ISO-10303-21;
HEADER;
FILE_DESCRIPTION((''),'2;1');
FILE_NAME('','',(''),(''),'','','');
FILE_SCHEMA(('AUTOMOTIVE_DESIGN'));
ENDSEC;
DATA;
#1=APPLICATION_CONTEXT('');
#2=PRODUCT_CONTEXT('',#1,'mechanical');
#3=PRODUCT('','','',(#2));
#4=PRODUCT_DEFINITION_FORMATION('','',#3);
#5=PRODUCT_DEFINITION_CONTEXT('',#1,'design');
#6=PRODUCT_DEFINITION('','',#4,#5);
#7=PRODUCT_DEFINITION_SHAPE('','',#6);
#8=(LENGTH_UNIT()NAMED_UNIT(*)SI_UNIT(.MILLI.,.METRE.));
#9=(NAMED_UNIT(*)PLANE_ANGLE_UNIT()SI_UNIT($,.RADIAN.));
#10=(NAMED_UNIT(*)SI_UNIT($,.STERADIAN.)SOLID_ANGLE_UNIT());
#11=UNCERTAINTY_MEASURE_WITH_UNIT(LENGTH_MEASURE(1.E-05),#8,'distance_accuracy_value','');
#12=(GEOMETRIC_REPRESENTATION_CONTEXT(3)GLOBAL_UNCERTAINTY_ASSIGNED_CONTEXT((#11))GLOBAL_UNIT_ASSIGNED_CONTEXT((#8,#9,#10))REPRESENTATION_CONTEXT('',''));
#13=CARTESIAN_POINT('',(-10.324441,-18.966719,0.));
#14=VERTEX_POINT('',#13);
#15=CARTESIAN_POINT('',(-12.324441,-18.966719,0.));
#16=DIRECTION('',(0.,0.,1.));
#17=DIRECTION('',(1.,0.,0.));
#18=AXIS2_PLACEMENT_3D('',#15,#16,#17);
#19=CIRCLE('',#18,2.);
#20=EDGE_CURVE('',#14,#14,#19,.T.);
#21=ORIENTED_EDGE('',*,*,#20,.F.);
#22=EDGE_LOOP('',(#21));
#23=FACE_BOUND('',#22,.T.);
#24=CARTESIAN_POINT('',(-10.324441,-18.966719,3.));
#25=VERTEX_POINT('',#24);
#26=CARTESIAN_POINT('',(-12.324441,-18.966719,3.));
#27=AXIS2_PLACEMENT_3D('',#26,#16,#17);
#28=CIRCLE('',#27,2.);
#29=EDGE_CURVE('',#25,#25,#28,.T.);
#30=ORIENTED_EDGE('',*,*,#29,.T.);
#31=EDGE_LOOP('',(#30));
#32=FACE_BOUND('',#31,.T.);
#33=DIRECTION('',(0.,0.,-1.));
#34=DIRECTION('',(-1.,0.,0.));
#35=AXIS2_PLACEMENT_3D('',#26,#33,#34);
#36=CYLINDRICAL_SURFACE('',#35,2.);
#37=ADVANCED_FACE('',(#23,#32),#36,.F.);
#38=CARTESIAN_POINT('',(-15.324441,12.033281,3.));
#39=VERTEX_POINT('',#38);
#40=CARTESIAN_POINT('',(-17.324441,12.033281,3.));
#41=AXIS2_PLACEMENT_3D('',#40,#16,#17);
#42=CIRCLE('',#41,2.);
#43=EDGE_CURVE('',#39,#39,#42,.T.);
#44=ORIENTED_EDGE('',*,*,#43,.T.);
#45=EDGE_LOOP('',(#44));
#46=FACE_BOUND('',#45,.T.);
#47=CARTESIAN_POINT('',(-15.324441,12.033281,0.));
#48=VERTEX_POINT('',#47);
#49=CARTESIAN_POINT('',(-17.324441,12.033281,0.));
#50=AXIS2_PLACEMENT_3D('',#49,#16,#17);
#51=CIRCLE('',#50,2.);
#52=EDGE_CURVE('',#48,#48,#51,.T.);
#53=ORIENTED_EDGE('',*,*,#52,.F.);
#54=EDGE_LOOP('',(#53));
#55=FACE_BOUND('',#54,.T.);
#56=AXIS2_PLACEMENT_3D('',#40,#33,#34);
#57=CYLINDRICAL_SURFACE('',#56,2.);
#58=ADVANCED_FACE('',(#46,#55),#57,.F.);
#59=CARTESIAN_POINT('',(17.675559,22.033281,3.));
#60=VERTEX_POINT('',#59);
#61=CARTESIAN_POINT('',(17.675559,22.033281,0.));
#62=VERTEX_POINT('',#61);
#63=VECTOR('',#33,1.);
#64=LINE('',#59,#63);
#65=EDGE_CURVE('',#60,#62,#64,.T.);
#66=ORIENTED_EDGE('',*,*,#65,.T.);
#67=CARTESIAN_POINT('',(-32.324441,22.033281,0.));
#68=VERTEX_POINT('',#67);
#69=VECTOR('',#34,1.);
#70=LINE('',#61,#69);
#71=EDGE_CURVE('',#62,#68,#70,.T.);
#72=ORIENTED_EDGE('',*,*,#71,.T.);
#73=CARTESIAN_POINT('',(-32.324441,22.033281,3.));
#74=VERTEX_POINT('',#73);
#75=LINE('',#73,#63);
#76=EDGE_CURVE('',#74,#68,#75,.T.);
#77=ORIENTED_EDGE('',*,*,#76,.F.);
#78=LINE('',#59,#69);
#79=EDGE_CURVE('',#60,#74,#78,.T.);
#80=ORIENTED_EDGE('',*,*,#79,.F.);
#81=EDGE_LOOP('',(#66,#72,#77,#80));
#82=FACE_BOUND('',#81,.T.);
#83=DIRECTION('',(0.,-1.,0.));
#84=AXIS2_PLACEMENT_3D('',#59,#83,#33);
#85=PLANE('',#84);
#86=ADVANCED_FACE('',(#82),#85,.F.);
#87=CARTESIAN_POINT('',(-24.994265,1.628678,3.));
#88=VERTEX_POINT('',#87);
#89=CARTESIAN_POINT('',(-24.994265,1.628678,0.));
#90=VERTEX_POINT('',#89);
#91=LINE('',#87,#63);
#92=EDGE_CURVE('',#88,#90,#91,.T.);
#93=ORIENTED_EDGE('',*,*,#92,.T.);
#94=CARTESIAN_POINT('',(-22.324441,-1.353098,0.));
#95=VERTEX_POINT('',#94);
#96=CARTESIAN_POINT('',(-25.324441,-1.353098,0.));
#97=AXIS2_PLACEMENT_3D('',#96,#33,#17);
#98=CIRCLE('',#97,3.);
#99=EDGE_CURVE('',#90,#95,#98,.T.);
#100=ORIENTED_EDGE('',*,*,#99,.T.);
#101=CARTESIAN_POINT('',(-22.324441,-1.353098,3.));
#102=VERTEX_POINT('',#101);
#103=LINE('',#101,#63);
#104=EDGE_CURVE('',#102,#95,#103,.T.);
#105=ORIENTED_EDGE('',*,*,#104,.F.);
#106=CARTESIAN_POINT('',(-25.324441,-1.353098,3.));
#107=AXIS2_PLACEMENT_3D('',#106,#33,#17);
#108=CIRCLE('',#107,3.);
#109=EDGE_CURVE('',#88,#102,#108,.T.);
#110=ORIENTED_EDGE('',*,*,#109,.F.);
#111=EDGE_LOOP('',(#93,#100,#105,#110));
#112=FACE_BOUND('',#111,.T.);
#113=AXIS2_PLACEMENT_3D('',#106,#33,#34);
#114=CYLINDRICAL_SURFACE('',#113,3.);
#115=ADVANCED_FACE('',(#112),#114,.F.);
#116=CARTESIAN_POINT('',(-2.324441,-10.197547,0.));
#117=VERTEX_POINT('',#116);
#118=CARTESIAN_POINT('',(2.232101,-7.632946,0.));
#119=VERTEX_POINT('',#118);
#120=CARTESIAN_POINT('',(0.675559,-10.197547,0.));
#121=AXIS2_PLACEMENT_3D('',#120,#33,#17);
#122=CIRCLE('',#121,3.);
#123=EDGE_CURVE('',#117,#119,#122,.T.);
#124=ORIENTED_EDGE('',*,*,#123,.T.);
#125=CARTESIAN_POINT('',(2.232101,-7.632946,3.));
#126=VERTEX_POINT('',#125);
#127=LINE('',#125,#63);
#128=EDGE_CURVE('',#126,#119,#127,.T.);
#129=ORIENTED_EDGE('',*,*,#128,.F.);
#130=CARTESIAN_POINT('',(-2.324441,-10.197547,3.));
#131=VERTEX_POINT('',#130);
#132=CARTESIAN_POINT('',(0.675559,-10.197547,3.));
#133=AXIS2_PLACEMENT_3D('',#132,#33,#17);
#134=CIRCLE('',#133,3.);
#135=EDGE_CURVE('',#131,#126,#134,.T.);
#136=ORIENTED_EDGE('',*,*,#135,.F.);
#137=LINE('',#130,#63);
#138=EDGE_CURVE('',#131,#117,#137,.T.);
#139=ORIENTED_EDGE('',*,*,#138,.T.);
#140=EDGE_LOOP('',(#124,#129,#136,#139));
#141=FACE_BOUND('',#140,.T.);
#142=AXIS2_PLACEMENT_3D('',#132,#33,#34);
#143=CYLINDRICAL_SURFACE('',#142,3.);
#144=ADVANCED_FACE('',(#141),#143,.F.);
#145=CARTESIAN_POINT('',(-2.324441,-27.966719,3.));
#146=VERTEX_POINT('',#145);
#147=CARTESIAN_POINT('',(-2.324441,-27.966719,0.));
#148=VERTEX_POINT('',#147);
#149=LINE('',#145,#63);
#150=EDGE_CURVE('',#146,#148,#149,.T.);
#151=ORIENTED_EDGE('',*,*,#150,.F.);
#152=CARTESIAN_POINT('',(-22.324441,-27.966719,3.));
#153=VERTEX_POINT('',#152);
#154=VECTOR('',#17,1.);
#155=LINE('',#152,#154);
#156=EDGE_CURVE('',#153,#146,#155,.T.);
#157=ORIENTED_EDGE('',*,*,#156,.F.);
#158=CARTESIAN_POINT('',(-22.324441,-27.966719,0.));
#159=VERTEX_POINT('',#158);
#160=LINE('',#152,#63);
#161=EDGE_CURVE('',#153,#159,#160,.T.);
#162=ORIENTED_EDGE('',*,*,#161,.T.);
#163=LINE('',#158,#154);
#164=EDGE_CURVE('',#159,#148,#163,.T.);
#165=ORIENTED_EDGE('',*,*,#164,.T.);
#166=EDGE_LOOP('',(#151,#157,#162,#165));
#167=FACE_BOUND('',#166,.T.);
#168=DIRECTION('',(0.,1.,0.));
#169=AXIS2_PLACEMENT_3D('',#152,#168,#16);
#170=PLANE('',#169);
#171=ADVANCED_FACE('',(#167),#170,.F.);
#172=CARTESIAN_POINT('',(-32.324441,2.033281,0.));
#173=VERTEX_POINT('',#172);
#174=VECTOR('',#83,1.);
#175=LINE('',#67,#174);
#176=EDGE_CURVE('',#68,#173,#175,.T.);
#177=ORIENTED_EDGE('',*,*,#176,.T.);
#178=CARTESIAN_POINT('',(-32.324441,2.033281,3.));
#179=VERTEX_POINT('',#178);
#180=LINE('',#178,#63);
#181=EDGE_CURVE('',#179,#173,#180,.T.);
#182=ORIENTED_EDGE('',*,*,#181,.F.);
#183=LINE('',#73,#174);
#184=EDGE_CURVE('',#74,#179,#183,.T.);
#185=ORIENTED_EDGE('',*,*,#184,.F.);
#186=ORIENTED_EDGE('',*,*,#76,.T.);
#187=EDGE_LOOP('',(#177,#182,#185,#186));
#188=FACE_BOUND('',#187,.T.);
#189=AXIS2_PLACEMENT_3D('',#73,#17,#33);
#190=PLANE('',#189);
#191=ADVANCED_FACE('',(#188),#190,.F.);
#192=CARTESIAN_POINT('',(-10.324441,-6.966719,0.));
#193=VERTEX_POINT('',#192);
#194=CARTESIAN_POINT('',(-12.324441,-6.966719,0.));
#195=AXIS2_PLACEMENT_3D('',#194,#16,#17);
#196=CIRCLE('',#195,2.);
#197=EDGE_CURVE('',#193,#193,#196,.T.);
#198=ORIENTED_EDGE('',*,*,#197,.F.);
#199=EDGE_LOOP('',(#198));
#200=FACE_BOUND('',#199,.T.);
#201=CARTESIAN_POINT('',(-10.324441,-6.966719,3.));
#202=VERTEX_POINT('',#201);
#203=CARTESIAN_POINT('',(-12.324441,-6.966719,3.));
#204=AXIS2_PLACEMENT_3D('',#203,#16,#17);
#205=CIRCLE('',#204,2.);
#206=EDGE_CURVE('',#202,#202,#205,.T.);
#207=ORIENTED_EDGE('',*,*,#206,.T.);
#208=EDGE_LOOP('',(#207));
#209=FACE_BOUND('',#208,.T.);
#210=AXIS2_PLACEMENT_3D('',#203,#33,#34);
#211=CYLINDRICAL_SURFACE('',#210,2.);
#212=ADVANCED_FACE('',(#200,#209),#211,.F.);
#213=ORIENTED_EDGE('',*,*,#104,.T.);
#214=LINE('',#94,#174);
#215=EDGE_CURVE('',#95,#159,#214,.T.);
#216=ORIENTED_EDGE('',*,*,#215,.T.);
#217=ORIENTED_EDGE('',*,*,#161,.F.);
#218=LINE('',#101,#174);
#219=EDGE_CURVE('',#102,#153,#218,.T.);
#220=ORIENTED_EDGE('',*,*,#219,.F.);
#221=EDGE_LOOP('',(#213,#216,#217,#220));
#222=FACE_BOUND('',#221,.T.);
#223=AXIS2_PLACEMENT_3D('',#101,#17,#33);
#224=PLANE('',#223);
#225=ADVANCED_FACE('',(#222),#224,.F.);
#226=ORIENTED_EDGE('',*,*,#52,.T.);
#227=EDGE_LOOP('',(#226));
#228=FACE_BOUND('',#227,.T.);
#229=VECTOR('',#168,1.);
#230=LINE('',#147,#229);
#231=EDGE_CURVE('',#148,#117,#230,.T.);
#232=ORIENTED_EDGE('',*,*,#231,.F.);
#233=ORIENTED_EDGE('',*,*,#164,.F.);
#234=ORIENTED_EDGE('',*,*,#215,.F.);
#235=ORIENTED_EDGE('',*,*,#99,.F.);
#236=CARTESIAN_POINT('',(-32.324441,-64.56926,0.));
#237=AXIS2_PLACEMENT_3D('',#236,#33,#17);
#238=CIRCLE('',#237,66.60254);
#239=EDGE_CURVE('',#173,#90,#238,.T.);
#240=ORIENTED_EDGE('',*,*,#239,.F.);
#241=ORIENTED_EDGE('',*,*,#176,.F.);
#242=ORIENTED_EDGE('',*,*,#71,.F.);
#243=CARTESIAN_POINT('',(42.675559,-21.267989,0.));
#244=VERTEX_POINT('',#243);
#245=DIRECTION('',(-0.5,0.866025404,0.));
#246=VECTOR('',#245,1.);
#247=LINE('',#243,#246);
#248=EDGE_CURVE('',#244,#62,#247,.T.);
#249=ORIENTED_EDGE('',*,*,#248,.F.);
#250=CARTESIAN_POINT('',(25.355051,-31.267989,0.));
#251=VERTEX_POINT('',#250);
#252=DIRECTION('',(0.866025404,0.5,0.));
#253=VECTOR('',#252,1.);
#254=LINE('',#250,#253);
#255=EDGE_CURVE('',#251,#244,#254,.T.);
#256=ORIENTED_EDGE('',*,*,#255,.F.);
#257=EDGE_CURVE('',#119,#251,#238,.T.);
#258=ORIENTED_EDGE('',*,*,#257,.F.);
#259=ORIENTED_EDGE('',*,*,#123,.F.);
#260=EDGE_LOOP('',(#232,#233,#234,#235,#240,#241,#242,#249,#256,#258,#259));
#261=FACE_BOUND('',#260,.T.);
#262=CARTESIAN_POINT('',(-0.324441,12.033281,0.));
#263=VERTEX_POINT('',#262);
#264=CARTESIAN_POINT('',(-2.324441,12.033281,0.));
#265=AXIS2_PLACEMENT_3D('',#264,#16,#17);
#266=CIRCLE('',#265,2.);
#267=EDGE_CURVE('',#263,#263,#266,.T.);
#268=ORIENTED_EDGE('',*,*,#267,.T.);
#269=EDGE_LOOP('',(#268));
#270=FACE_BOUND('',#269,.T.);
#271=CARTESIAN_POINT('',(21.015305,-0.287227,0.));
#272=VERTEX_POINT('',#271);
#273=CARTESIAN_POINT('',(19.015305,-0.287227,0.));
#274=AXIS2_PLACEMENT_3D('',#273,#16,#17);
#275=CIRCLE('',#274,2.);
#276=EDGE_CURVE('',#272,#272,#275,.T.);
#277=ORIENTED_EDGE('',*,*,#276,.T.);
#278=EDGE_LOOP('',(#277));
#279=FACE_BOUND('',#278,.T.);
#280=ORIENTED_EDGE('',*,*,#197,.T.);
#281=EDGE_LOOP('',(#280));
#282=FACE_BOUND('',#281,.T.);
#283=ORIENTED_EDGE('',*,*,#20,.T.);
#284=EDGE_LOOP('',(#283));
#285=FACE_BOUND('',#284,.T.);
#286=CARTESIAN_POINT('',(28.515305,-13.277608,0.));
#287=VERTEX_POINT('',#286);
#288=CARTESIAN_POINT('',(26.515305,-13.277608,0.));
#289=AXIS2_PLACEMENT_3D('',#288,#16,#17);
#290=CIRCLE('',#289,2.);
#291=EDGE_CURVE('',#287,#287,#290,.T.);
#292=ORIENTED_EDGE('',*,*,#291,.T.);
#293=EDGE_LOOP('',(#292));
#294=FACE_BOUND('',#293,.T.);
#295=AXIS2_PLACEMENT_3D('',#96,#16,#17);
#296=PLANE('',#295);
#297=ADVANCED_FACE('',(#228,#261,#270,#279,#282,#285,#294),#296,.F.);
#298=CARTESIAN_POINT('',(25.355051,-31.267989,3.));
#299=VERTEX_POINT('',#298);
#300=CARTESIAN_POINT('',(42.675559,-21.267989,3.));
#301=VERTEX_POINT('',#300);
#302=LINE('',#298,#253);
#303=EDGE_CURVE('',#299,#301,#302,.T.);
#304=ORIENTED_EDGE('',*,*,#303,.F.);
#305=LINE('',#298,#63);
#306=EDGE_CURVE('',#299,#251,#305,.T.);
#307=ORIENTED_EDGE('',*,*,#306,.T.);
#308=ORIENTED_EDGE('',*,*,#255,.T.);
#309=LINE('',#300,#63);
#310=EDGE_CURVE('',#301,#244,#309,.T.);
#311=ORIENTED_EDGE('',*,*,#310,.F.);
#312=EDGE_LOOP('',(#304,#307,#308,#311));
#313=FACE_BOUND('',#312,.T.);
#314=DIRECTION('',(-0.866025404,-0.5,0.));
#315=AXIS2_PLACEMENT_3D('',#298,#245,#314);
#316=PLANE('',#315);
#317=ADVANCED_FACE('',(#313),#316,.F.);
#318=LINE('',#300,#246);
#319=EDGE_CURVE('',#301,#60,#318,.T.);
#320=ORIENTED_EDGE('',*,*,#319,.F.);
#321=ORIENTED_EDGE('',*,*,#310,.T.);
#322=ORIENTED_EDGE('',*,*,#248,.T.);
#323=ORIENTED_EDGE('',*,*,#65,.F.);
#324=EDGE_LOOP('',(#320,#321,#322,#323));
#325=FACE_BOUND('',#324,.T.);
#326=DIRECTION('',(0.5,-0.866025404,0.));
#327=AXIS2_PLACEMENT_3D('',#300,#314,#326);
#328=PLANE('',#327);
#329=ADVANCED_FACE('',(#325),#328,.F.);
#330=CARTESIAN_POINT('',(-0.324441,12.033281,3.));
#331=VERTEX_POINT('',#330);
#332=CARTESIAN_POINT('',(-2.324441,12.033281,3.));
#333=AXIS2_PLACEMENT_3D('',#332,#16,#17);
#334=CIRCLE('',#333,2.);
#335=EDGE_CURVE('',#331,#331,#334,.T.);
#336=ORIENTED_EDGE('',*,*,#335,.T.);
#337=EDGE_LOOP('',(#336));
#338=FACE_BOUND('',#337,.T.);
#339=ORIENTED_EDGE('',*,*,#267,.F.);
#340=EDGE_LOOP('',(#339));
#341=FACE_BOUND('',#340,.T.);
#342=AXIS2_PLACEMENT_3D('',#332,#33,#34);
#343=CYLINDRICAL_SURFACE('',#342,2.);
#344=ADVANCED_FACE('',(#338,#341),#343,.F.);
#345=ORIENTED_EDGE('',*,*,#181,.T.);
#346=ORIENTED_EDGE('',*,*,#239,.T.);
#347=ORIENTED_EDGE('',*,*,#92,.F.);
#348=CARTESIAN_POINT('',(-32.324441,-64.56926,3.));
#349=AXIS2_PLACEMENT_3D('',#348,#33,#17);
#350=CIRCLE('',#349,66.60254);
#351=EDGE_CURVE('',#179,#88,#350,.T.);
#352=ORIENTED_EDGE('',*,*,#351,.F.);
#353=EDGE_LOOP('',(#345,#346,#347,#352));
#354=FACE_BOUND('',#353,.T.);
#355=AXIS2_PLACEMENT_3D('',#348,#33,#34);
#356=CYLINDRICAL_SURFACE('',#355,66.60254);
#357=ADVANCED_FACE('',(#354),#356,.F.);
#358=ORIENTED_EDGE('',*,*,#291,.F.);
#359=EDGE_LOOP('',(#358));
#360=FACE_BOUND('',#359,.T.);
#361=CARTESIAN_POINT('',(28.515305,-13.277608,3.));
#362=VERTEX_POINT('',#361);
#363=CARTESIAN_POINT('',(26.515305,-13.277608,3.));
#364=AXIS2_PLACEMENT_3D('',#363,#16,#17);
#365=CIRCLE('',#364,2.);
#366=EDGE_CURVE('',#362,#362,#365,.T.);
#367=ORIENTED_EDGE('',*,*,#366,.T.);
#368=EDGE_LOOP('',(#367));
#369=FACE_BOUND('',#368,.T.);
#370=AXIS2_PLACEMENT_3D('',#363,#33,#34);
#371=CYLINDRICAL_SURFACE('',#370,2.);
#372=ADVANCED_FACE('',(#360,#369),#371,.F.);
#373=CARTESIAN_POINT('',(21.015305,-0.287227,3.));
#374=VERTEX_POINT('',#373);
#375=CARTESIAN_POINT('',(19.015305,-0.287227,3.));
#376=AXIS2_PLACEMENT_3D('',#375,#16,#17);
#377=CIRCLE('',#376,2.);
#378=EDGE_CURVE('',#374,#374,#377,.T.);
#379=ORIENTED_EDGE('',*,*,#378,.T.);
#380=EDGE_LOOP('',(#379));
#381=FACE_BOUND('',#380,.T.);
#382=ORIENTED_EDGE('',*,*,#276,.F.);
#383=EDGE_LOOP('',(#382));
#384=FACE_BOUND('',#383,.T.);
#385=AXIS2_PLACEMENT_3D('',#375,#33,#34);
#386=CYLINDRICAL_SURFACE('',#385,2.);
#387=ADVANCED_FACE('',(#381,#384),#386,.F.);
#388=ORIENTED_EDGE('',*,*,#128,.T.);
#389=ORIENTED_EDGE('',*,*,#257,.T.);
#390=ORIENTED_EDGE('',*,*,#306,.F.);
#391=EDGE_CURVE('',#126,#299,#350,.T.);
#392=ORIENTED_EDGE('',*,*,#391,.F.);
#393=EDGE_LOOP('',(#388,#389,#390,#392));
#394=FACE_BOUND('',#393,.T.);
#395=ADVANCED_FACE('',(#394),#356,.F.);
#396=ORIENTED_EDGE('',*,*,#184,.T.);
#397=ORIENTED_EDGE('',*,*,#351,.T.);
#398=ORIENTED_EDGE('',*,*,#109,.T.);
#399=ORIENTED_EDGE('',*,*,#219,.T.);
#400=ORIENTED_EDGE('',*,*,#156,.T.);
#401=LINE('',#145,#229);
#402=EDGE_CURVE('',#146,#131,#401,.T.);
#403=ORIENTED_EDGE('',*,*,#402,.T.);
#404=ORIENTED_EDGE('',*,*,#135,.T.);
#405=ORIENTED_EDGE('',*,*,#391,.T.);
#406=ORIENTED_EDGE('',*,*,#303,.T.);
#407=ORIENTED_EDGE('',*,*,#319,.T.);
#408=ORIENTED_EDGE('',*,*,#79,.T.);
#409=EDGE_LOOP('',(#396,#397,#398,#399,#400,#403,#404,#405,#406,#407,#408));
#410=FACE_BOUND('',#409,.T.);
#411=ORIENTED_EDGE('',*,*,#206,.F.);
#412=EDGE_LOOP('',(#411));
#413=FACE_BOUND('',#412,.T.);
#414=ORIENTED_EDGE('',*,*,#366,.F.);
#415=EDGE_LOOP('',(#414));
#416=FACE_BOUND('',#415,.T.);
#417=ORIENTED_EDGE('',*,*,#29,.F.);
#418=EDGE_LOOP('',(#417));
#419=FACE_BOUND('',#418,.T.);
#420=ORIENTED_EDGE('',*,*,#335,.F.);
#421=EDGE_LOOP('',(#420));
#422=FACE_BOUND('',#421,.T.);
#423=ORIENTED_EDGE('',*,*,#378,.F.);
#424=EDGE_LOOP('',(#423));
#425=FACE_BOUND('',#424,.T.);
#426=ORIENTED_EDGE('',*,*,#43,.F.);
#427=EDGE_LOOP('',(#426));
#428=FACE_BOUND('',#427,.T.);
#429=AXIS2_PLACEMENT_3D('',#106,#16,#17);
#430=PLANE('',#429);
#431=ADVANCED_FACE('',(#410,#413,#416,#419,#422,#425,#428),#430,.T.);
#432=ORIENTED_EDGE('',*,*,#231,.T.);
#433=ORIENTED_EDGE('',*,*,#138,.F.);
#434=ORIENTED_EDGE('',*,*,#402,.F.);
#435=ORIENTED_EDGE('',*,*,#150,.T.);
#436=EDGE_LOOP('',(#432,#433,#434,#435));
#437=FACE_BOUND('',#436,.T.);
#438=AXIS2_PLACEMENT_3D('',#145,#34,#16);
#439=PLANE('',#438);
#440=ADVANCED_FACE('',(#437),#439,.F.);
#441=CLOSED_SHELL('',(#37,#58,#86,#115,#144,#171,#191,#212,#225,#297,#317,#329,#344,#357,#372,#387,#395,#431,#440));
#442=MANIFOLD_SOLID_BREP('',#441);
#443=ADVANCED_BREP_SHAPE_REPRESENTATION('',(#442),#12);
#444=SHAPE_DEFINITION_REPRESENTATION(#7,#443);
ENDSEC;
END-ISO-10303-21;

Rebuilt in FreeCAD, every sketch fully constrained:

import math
import FreeCAD as App
import Part
import Sketcher
Q = App.Units.Quantity

doc = App.newDocument("Part")
body = doc.addObject("PartDesign::Body", "Body")

sketch1 = doc.addObject("Sketcher::SketchObject", "Sketch")
body.addObject(sketch1)
sketch1.AttachmentSupport = (doc.XY_Plane, [""])
sketch1.MapMode = "FlatFace"
sketch1.addGeometry([
    Part.LineSegment(App.Vector(-22.3, -1.4, 0), App.Vector(-22.3, -28, 0)),
    Part.LineSegment(App.Vector(-22.3, -28, 0), App.Vector(-2.3, -28, 0)),
    Part.LineSegment(App.Vector(-2.3, -28, 0), App.Vector(-2.3, -10.2, 0)),
    Part.ArcOfCircle(Part.Circle(App.Vector(0.7, -10.2, 0), App.Vector(0, 0, 1), 3), math.radians(59), math.radians(180)),
    Part.ArcOfCircle(Part.Circle(App.Vector(-32.3, -64.6, 0), App.Vector(0, 0, 1), 66.6), math.radians(30), math.radians(59)),
    Part.LineSegment(App.Vector(25.4, -31.3, 0), App.Vector(42.7, -21.3, 0)),
    Part.LineSegment(App.Vector(42.7, -21.3, 0), App.Vector(17.7, 22, 0)),
    Part.LineSegment(App.Vector(17.7, 22, 0), App.Vector(-32.3, 22, 0)),
    Part.LineSegment(App.Vector(-32.3, 22, 0), App.Vector(-32.3, 2, 0)),
    Part.ArcOfCircle(Part.Circle(App.Vector(-32.3, -64.6, 0), App.Vector(0, 0, 1), 66.6), math.radians(83.68), math.radians(90)),
    Part.ArcOfCircle(Part.Circle(App.Vector(-25.3, -1.4, 0), App.Vector(0, 0, 1), 3), math.radians(0), math.radians(84)),
    Part.Circle(App.Vector(-12.3, -19, 0), App.Vector(0, 0, 1), 2),
    Part.Circle(App.Vector(-12.3, -7, 0), App.Vector(0, 0, 1), 2),
    Part.Circle(App.Vector(26.5, -13.3, 0), App.Vector(0, 0, 1), 2),
    Part.Circle(App.Vector(-17.3, 12, 0), App.Vector(0, 0, 1), 2),
    Part.Circle(App.Vector(-2.3, 12, 0), App.Vector(0, 0, 1), 2),
    Part.Circle(App.Vector(19, -0.3, 0), App.Vector(0, 0, 1), 2),
], False)
sketch1.addConstraint([
    Sketcher.Constraint("Coincident", 0, 2, 1, 1),
    Sketcher.Constraint("Coincident", 1, 2, 2, 1),
    Sketcher.Constraint("Tangent", 2, 2, 3, 2),
    Sketcher.Constraint("Tangent", 3, 1, 4, 2),
    Sketcher.Constraint("Coincident", 4, 1, 5, 1),
    Sketcher.Constraint("Coincident", 5, 2, 6, 1),
    Sketcher.Constraint("Coincident", 6, 2, 7, 1),
    Sketcher.Constraint("Coincident", 7, 2, 8, 1),
    Sketcher.Constraint("Coincident", 8, 2, 9, 2),
    Sketcher.Constraint("Tangent", 9, 1, 10, 2),
    Sketcher.Constraint("Tangent", 10, 1, 0, 1),
    Sketcher.Constraint("Vertical", 0),
    Sketcher.Constraint("Horizontal", 1),
    Sketcher.Constraint("Vertical", 2),
    Sketcher.Constraint("Horizontal", 7),
    Sketcher.Constraint("Vertical", 8),
    Sketcher.Constraint("Coincident", 9, 3, 4, 3),
    Sketcher.Constraint("Equal", 4, 9),
    Sketcher.Constraint("Equal", 3, 10),
    Sketcher.Constraint("Equal", 11, 12),
    Sketcher.Constraint("Equal", 12, 13),
    Sketcher.Constraint("Equal", 13, 14),
    Sketcher.Constraint("Equal", 14, 15),
    Sketcher.Constraint("Equal", 15, 16),
    Sketcher.Constraint("Perpendicular", 5, 6),
    Sketcher.Constraint("Horizontal", 14, 3, 15, 3),
    Sketcher.Constraint("Vertical", 11, 3, 12, 3),
    Sketcher.Constraint("Vertical", 15, 3, 1, 2),
    Sketcher.Constraint("Vertical", 9, 3, 7, 2),
    Sketcher.Constraint("Equal", 1, 8),
    Sketcher.Constraint("Diameter", 11, 4.0),
    Sketcher.Constraint("Radius", 3, 3.0),
    Sketcher.Constraint("DistanceX", 1, 1, 1, 2, 20.0),
    Sketcher.Constraint("DistanceX", 7, 2, 7, 1, 50.0),
    Sketcher.Constraint("Angle", 5, Q("30 deg")),
    Sketcher.Constraint("Distance", 5, 20.0),
    Sketcher.Constraint("Distance", 6, 50.0),
    Sketcher.Constraint("DistanceX", 4, 3, 3, 3, 33.0),
    Sketcher.Constraint("DistanceX", 11, 3, 3, 3, 13.0),
    Sketcher.Constraint("DistanceY", 11, 3, 12, 3, 12.0),
    Sketcher.Constraint("DistanceX", 10, 3, 14, 3, 8.0),
    Sketcher.Constraint("DistanceY", 12, 3, 14, 3, 19.0),
    Sketcher.Constraint("DistanceY", 0, 2, 11, 3, 9.0),
    Sketcher.Constraint("DistanceY", 15, 3, 6, 2, 10.0),
    Sketcher.Constraint("DistanceX", 16, 3, 13, 3, 7.5),
    Sketcher.Constraint("DistanceX", -1, 1, 3, 1, 2.232101),
    Sketcher.Constraint("DistanceY", 4, 3, -1, 1, 64.56926),
    Sketcher.Constraint("DistanceY", 13, 3, -1, 1, 13.277608),
    Sketcher.Constraint("DistanceY", 13, 3, 16, 3, 12.990381),
    Sketcher.Constraint("DistanceX", -1, 1, 13, 3, 26.515305),
])
pad1 = doc.addObject("PartDesign::Pad", "Pad")
body.addObject(pad1)
pad1.Profile = sketch1
pad1.Length = 3

doc.recompute()
